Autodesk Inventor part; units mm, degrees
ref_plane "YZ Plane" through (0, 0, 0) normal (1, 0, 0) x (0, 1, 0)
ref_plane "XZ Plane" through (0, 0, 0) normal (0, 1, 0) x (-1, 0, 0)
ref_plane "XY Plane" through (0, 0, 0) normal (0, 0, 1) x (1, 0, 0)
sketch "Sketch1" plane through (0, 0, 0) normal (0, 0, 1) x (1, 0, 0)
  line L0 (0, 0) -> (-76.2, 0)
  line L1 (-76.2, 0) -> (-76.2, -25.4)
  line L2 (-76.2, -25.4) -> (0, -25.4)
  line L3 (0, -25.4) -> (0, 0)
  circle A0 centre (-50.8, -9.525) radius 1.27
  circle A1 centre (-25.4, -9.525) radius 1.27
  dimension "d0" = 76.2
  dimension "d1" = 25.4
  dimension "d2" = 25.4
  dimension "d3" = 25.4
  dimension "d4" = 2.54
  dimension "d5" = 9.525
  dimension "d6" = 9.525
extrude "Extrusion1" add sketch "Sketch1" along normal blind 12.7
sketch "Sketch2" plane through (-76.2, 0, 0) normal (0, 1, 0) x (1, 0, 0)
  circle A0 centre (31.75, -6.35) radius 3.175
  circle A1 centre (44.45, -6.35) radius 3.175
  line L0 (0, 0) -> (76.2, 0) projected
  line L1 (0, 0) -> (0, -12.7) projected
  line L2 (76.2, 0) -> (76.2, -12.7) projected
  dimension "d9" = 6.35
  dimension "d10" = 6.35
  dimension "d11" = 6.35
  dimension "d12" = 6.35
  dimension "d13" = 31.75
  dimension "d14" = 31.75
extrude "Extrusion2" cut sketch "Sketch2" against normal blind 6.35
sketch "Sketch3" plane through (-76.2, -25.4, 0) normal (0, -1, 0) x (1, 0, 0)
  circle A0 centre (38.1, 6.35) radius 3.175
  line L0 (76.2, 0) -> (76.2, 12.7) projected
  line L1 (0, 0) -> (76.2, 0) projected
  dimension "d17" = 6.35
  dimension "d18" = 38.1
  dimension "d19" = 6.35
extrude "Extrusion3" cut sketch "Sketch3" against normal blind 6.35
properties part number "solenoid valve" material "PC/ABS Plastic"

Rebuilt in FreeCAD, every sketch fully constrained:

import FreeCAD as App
import Part
import Sketcher

V = App.Vector
Q = App.Units.Quantity

doc = App.newDocument("Part")
body = doc.addObject("PartDesign::Body", "Body")

# Sketch on XY plane
sketch1 = body.newObject("Sketcher::SketchObject", "Sketch")
sketch1.AttachmentSupport = (doc.getObject("XY_Plane"), [""])
sketch1.MapMode = "FlatFace"
sketch1.addGeometry([
    Part.LineSegment(V(0, -25.4, 0), V(0, 0, 0)),  # 0
    Part.LineSegment(V(0, 0, 0), V(-76.2, 0, 0)),  # 1
    Part.LineSegment(V(-76.2, 0, 0), V(-76.2, -25.4, 0)),  # 2
    Part.LineSegment(V(-76.2, -25.4, 0), V(0, -25.4, 0)),  # 3
    Part.Circle(V(-50.8, -9.5, 0), V(0, 0, 1), 1.3),  # 4
    Part.Circle(V(-25.4, -9.5, 0), V(0, 0, 1), 1.3),  # 5
], False)
sketch1.addConstraint([
    Sketcher.Constraint("Coincident", 0, 2, 1, 1),
    Sketcher.Constraint("Coincident", 1, 2, 2, 1),
    Sketcher.Constraint("Coincident", 2, 2, 3, 1),
    Sketcher.Constraint("Coincident", 3, 2, 0, 1),
    Sketcher.Constraint("Vertical", 0),
    Sketcher.Constraint("Horizontal", 1),
    Sketcher.Constraint("Vertical", 2),
    Sketcher.Constraint("Horizontal", 3),
    Sketcher.Constraint("Coincident", 0, 2, -1, 1),
    Sketcher.Constraint("Equal", 4, 5),
    Sketcher.Constraint("Horizontal", 4, 3, 5, 3),
    Sketcher.Constraint("Diameter", 4, Q("0.1 in")),
    Sketcher.Constraint("DistanceX", 1, 2, 1, 1, Q("3 in")),
    Sketcher.Constraint("DistanceY", 0, 1, 0, 2, Q("1 in")),
    Sketcher.Constraint("DistanceX", 5, 3, -1, 1, Q("1 in")),
    Sketcher.Constraint("DistanceX", 4, 3, 5, 3, Q("1 in")),
    Sketcher.Constraint("DistanceY", 4, 3, -1, 1, Q("0.375 in")),
])
pad1 = body.newObject("PartDesign::Pad", "Pad")
pad1.Profile = sketch1
pad1.Length = Q("0.5 in")

# Sketch on XZ plane
sketch2 = body.newObject("Sketcher::SketchObject", "Sketch001")
sketch2.AttachmentSupport = (doc.getObject("XZ_Plane"), [""])
sketch2.MapMode = "FlatFace"
sketch2.addGeometry([
    Part.Circle(V(-44.5, 6.3, 0), V(0, 0, 1), 3.2),
    Part.Circle(V(-31.8, 6.3, 0), V(0, 0, 1), 3.2),
], False)
sketch2.addConstraint([
    Sketcher.Constraint("Equal", 0, 1),
    Sketcher.Constraint("Horizontal", 0, 3, 1, 3),
    Sketcher.Constraint("Diameter", 0, Q("0.25 in")),
    Sketcher.Constraint("DistanceY", -1, 1, 0, 3, Q("0.25 in")),
    Sketcher.Constraint("DistanceX", 1, 3, -1, 1, Q("1.25 in")),
    Sketcher.Constraint("DistanceX", 0, 3, 1, 3, Q("0.5 in")),
])
pocket1 = body.newObject("PartDesign::Pocket", "Pocket")
pocket1.Profile = sketch2
pocket1.Length = Q("0.25 in")
pocket1.Reversed = True

# Sketch on XZ plane
sketch3 = body.newObject("Sketcher::SketchObject", "Sketch002")
sketch3.AttachmentSupport = (doc.getObject("XZ_Plane"), [""])
sketch3.MapMode = "FlatFace"
sketch3.AttachmentOffset = App.Placement(V(0, 0, 1 * 25.4), App.Rotation())
sketch3.addGeometry(Part.Circle(V(-38.1, 6.3, 0), V(0, 0, 1), 3.2), False)
sketch3.addConstraint([
    Sketcher.Constraint("Diameter", 0, Q("0.25 in")),
    Sketcher.Constraint("DistanceX", 0, 3, -1, 1, Q("1.5 in")),
    Sketcher.Constraint("DistanceY", -1, 1, 0, 3, Q("0.25 in")),
])
pocket2 = body.newObject("PartDesign::Pocket", "Pocket001")
pocket2.Profile = sketch3
pocket2.Length = Q("0.25 in")

doc.recompute()
